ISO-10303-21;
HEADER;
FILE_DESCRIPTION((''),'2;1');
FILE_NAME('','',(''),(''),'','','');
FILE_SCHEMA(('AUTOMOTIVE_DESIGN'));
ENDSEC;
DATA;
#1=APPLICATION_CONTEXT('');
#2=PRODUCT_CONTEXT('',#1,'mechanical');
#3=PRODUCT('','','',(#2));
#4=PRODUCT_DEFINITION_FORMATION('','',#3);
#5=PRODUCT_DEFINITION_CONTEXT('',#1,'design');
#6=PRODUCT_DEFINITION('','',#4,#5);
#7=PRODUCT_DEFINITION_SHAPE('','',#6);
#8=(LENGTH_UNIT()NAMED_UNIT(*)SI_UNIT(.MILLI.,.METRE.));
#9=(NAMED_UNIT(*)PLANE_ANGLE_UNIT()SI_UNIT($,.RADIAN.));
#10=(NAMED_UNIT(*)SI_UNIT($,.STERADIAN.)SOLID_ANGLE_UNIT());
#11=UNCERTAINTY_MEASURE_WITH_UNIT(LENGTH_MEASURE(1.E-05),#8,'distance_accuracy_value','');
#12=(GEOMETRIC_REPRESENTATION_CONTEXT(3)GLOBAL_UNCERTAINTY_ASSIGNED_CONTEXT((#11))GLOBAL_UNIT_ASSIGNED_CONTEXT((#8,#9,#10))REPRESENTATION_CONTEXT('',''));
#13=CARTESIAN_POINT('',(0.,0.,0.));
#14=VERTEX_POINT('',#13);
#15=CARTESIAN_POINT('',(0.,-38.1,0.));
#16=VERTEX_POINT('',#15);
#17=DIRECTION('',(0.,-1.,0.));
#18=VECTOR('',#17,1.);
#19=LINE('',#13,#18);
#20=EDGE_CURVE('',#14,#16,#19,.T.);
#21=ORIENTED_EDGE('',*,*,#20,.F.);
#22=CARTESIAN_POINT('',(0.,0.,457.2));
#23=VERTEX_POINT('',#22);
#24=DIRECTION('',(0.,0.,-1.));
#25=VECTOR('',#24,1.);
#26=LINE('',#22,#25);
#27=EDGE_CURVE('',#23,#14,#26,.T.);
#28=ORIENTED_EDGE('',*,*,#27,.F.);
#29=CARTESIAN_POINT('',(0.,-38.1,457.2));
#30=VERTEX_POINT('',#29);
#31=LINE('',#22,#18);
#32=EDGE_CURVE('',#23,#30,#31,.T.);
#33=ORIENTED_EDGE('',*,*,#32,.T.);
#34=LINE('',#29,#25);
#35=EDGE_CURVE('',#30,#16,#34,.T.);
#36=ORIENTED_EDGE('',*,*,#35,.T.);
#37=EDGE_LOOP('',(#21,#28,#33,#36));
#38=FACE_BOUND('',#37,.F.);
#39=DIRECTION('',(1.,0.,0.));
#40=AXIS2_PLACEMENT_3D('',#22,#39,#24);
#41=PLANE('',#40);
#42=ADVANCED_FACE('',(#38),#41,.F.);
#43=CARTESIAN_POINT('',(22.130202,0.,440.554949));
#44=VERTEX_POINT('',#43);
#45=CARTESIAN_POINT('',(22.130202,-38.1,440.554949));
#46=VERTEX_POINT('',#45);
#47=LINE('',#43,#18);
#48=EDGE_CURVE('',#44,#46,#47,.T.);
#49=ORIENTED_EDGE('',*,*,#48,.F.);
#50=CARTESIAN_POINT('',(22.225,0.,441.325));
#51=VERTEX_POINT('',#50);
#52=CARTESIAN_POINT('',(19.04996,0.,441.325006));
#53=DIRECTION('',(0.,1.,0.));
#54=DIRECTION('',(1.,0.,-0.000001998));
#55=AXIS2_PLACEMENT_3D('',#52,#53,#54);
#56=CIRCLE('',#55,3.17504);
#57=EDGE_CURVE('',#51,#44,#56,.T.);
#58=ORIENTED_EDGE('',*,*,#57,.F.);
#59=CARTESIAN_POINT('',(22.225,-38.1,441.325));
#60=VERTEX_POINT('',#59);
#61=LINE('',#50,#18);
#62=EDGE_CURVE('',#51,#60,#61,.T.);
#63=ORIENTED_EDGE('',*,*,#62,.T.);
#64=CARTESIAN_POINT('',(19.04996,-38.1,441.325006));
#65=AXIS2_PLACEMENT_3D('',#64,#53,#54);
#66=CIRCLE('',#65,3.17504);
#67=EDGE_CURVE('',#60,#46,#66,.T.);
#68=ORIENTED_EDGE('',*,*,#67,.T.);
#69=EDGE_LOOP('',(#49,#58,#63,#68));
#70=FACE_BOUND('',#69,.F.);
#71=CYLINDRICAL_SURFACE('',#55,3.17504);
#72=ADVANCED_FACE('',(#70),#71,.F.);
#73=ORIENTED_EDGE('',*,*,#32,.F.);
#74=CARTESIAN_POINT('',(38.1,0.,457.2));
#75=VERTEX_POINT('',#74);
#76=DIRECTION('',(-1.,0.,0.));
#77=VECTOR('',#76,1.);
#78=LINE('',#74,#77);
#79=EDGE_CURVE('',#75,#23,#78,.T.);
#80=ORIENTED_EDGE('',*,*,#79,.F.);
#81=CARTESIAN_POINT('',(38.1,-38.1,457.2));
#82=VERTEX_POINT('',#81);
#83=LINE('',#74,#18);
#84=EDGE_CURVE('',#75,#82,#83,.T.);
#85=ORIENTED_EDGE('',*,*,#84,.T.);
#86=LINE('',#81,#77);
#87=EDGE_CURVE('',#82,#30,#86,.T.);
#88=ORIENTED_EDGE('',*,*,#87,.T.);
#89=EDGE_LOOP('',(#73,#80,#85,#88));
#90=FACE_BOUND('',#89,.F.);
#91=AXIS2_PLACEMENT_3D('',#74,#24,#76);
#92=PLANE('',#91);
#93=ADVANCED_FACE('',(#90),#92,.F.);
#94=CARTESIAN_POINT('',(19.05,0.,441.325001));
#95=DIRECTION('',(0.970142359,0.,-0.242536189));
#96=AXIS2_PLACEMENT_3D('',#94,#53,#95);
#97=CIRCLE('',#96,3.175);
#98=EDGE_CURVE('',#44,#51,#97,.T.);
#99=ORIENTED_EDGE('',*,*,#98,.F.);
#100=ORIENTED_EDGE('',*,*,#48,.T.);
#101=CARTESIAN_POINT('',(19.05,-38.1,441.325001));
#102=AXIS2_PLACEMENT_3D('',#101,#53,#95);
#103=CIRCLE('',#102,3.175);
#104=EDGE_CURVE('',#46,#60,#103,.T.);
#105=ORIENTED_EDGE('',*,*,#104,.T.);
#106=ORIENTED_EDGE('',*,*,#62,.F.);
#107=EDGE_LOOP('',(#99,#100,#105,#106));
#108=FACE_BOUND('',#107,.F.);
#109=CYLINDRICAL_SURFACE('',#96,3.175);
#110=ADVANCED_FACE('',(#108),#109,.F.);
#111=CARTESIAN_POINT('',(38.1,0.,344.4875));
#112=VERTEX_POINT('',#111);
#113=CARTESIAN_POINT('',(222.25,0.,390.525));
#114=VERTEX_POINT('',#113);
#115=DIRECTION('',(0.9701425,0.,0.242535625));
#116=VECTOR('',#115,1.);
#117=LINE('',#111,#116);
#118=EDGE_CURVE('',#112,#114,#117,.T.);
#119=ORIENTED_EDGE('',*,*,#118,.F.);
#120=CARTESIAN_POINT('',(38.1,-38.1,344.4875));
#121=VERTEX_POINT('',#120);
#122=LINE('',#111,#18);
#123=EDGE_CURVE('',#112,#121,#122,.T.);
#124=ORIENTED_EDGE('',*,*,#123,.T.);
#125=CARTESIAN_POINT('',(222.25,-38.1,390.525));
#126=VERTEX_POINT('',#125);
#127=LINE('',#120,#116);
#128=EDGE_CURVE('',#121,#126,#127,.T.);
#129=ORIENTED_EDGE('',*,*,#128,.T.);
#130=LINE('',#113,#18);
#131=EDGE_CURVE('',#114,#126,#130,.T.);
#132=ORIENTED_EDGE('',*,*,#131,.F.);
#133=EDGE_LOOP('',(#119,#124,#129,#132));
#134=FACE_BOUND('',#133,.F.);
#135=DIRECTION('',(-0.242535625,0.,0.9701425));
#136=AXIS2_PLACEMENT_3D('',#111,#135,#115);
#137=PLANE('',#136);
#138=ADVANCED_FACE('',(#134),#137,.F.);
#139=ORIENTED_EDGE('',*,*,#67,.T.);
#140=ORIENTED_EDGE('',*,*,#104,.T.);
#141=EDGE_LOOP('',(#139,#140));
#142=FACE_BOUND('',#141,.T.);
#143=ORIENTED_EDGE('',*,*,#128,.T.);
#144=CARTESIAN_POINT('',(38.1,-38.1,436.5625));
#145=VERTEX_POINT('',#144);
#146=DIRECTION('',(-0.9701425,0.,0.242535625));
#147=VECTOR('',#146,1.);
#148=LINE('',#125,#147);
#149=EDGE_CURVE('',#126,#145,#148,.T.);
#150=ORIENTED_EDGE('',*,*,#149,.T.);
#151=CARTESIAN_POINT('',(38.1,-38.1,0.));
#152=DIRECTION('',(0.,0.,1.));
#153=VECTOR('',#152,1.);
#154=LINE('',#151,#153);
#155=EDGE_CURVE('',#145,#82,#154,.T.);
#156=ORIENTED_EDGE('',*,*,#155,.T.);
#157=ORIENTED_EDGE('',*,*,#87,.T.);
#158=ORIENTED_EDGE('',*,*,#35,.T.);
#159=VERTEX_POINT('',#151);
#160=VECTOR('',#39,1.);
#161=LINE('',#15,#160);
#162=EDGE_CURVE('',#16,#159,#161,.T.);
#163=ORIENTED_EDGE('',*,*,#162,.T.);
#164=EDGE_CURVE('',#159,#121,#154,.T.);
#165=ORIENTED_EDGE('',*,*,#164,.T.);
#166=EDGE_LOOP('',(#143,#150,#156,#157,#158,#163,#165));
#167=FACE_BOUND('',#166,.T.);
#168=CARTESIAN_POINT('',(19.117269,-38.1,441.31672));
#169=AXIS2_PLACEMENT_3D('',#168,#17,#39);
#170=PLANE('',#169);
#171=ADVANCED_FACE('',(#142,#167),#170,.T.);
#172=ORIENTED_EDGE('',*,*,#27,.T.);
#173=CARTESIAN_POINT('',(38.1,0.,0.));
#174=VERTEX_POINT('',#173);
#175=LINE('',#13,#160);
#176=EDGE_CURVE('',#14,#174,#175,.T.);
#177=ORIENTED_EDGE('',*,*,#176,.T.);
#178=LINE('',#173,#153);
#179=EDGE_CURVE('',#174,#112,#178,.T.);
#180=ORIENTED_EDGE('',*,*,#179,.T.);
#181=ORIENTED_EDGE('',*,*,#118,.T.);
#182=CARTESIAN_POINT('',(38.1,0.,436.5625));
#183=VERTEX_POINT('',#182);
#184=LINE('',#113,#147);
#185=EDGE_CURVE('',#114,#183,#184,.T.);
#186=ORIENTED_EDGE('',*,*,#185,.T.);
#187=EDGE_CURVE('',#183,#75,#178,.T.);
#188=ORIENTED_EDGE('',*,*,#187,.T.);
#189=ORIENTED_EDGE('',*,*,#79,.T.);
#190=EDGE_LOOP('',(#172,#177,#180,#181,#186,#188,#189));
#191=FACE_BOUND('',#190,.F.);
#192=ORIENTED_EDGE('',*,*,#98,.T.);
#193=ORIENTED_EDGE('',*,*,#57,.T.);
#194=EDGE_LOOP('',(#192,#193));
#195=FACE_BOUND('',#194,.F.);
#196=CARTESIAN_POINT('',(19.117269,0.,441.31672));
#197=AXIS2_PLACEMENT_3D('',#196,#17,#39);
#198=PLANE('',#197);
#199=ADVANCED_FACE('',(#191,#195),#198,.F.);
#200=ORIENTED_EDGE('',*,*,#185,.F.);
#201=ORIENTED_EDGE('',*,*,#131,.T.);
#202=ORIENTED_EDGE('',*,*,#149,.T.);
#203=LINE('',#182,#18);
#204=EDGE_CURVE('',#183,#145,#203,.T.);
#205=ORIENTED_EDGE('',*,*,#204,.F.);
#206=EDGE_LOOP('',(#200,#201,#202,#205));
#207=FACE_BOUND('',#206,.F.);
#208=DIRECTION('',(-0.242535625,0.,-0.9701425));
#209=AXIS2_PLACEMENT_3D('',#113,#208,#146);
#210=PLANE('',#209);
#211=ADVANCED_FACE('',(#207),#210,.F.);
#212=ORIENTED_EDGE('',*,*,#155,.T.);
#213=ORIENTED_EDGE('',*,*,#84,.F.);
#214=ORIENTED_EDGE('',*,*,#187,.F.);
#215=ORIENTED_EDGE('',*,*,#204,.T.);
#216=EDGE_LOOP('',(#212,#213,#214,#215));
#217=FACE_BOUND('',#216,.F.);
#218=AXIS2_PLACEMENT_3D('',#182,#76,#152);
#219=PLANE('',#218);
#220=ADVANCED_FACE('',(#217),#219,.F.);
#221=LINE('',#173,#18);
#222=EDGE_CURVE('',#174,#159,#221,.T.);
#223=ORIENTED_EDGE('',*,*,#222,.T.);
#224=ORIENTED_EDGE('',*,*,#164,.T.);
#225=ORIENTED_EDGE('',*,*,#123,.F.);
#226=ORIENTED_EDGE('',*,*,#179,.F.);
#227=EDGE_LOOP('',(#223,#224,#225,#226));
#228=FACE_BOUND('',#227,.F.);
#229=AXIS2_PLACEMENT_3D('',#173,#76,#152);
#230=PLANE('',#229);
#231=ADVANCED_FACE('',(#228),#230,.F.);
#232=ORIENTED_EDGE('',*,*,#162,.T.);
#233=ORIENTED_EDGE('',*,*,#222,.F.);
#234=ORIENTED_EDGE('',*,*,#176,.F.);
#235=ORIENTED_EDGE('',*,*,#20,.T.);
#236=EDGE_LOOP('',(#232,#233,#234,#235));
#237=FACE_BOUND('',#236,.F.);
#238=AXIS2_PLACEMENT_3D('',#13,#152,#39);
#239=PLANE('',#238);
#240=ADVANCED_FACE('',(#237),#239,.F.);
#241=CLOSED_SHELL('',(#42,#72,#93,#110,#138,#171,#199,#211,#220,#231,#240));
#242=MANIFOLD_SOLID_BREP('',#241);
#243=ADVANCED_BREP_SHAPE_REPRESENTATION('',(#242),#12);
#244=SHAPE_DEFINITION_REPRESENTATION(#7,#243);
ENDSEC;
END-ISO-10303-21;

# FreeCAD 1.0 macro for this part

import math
import FreeCAD as App
import Part
import Sketcher
from FreeCAD import Vector
Q = App.Units.Quantity

doc = App.newDocument("Part")
params = doc.addObject("Spreadsheet::Sheet", "Params")
for row, (alias, value) in enumerate([
    ("sketch1_height", "18 in"),
    ("sketch1_width", "1.5 in"),
    ("sketch1_width2", "1.5 in"),
    ("sketch1_radius", "0.125 in"),
    ("sketch1_height2", "13.5625 in"),
    ("pad1_length", "1.5 in"),
], start=1):
    params.set(f"A{row}", alias)
    params.set(f"B{row}", "=" + value)
    params.setAlias(f"B{row}", alias)

body = doc.addObject("PartDesign::Body", "Body")

# Sketch on XZ plane
sketch1 = body.newObject("Sketcher::SketchObject", "Sketch")
sketch1.AttachmentSupport = (doc.getObject("XZ_Plane"), [""])
sketch1.MapMode = "FlatFace"
sketch1.addGeometry([
    Part.LineSegment(Vector(0, 457.2, 0), Vector(0, 0, 0)),  # 0
    Part.LineSegment(Vector(0, 0, 0), Vector(38.1, 0, 0)),  # 1
    Part.LineSegment(Vector(38.1, 0, 0), Vector(38.1, 344.4875, 0)),  # 2
    Part.LineSegment(Vector(38.1, 344.4875, 0), Vector(222.25, 390.525, 0)),  # 3
    Part.LineSegment(Vector(222.25, 390.525, 0), Vector(38.1, 436.5625, 0)),  # 4
    Part.LineSegment(Vector(38.1, 436.5625, 0), Vector(38.1, 457.2, 0)),  # 5
    Part.LineSegment(Vector(38.1, 457.2, 0), Vector(0, 457.2, 0)),  # 6
    Part.ArcOfCircle(Part.Circle(Vector(19.05, 441.325001, 0), Vector(0, 0, 1), 3.175), math.radians(-0.000024), math.radians(345.963723)),  # 7
    Part.ArcOfCircle(Part.Circle(Vector(19.04996, 441.325006, 0), Vector(0, 0, 1), 3.17504), math.radians(-14.036186), math.radians(-0.000114)),  # 8
], False)
sketch1.addConstraint([
    Sketcher.Constraint("Coincident", 0, 2, 1, 1),
    Sketcher.Constraint("Coincident", 1, 2, 2, 1),
    Sketcher.Constraint("Coincident", 2, 2, 3, 1),
    Sketcher.Constraint("Coincident", 3, 2, 4, 1),
    Sketcher.Constraint("Coincident", 4, 2, 5, 1),
    Sketcher.Constraint("Coincident", 5, 2, 6, 1),
    Sketcher.Constraint("Coincident", 6, 2, 0, 1),
    Sketcher.Constraint("Coincident", 7, 1, 8, 2),
    Sketcher.Constraint("Coincident", 8, 1, 7, 2),
    Sketcher.Constraint("Vertical", 0),
    Sketcher.Constraint("Horizontal", 1),
    Sketcher.Constraint("Vertical", 2),
    Sketcher.Constraint("Vertical", 5),
    Sketcher.Constraint("Horizontal", 6),
    Sketcher.Constraint("Coincident", 0, 2, -1, 1),
    Sketcher.Constraint("DistanceY", 0, 2, 0, 1, Q("18 in")),
    Sketcher.Constraint("DistanceX", 1, 1, 1, 2, Q("1.5 in")),
    Sketcher.Constraint("DistanceX", 6, 2, 6, 1, Q("1.5 in")),
    Sketcher.Constraint("Radius", 7, Q("0.125 in")),
    Sketcher.Constraint("DistanceX", 7, 3, 3, 2, Q("8 in")),
    Sketcher.Constraint("DistanceY", 3, 2, 7, 3, Q("2.0000001 in")),
    Sketcher.Constraint("DistanceY", 2, 1, 2, 2, Q("13.5625 in")),
    Sketcher.Constraint("DistanceY", 5, 1, 5, 2, Q("0.8125 in")),
    Sketcher.Constraint("DistanceX", -1, 1, 7, 3, Q("0.75 in")),
    Sketcher.Constraint("DistanceY", -1, 1, 7, 3, Q("17.3750001 in")),
    Sketcher.Constraint("DistanceY", -1, 1, 7, 1, Q("17.375 in")),
    Sketcher.Constraint("Radius", 8, Q("3.17504 mm")),
    Sketcher.Constraint("DistanceX", 7, 3, 8, 1, Q("3.080202 mm")),
])
sketch1.setExpression("Constraints[15]", "Params.sketch1_height")
sketch1.setExpression("Constraints[16]", "Params.sketch1_width")
sketch1.setExpression("Constraints[17]", "Params.sketch1_width2")
sketch1.setExpression("Constraints[18]", "Params.sketch1_radius")
sketch1.setExpression("Constraints[21]", "Params.sketch1_height2")
pad1 = body.newObject("PartDesign::Pad", "Pad")
pad1.Profile = sketch1
pad1.setExpression("Length", "Params.pad1_length")

doc.recompute()
